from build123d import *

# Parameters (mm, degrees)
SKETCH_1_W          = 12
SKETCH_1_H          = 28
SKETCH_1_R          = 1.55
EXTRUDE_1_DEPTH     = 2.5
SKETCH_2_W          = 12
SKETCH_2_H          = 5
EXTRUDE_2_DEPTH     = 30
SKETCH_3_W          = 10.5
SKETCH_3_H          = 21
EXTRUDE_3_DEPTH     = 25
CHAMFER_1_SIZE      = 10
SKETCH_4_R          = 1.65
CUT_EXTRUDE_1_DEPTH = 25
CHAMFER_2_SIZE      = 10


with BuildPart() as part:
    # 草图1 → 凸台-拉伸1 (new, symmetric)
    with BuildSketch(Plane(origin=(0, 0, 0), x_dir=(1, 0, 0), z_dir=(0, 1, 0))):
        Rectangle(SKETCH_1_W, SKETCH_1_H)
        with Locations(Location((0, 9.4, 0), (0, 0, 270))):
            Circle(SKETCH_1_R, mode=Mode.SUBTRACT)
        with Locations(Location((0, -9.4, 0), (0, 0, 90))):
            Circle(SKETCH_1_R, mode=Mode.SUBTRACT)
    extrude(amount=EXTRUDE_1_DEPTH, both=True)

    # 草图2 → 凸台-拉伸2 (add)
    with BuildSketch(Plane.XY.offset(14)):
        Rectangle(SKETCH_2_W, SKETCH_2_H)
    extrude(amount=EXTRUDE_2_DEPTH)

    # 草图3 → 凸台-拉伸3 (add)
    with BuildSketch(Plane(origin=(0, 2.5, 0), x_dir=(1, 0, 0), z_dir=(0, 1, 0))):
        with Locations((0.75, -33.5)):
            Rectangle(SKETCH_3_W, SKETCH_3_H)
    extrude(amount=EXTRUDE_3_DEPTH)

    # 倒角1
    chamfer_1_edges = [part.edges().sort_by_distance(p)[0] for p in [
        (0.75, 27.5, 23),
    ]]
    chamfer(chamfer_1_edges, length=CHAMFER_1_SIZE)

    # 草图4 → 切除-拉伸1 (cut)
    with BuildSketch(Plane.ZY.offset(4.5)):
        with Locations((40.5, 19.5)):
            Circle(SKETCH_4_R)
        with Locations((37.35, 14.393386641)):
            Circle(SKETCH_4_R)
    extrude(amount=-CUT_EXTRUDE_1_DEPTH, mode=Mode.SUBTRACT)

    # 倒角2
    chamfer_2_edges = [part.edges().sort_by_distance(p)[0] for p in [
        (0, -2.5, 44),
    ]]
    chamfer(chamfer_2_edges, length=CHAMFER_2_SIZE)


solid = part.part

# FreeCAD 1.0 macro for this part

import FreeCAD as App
import Part
import Sketcher
from FreeCAD import Vector
Q = App.Units.Quantity


def edges_at(feature, points):
    """Names of the edges that pass closest to the given points."""
    edges = feature.Shape.Edges
    near = lambda p: min(range(len(edges)), key=lambda i: edges[i].distToShape(Part.Vertex(*p))[0])
    return sorted({f"Edge{near(p) + 1}" for p in points})

doc = App.newDocument("Part")
body = doc.addObject("PartDesign::Body", "Body")

# Sketch on XZ plane
sketch1 = doc.addObject("Sketcher::SketchObject", "Sketch")
body.addObject(sketch1)
sketch1.AttachmentSupport = (doc.XZ_Plane, [""])
sketch1.MapMode = "FlatFace"
sketch1.addGeometry(Part.LineSegment(Vector(-6, -14, 0), Vector(-6, 14, 0)), False)
sketch1.addGeometry(Part.LineSegment(Vector(-6, 14, 0), Vector(6, 14, 0)), False)
sketch1.addGeometry(Part.LineSegment(Vector(6, 14, 0), Vector(6, -14, 0)), False)
sketch1.addGeometry(Part.LineSegment(Vector(6, -14, 0), Vector(-6, -14, 0)), False)
sketch1.addGeometry(Part.Circle(Vector(0, 9.4, 0), Vector(0, 0, 1), 1.6), False)
sketch1.addGeometry(Part.Circle(Vector(0, -9.4, 0), Vector(0, 0, 1), 1.6), False)
sketch1.addConstraint(Sketcher.Constraint("Coincident", 0, 2, 1, 1))
sketch1.addConstraint(Sketcher.Constraint("Coincident", 1, 2, 2, 1))
sketch1.addConstraint(Sketcher.Constraint("Coincident", 2, 2, 3, 1))
sketch1.addConstraint(Sketcher.Constraint("Coincident", 3, 2, 0, 1))
sketch1.addConstraint(Sketcher.Constraint("Vertical", 0))
sketch1.addConstraint(Sketcher.Constraint("Horizontal", 1))
sketch1.addConstraint(Sketcher.Constraint("Vertical", 2))
sketch1.addConstraint(Sketcher.Constraint("Horizontal", 3))
sketch1.addConstraint(Sketcher.Constraint("Equal", 4, 5))
sketch1.addConstraint(Sketcher.Constraint("Symmetric", 4, 3, 5, 3, -1, 1))
sketch1.addConstraint(Sketcher.Constraint("Symmetric", 0, 2, 2, 2, -1, 1))
sketch1.addConstraint(Sketcher.Constraint("PointOnObject", 4, 3, -2))
sketch1.addConstraint(Sketcher.Constraint("Diameter", 4, Q("3.1 mm")))
sketch1.addConstraint(Sketcher.Constraint("DistanceX", 1, 1, 1, 2, Q("12 mm")))
sketch1.addConstraint(Sketcher.Constraint("DistanceY", 0, 1, 0, 2, Q("28 mm")))
sketch1.addConstraint(Sketcher.Constraint("DistanceY", -1, 1, 4, 3, Q("9.4 mm")))
pad1 = doc.addObject("PartDesign::Pad", "Pad")
body.addObject(pad1)
pad1.Profile = sketch1
pad1.Length = 5
pad1.Midplane = True

# Sketch on XY plane
sketch2 = doc.addObject("Sketcher::SketchObject", "Sketch001")
body.addObject(sketch2)
sketch2.AttachmentSupport = (doc.XY_Plane, [""])
sketch2.MapMode = "FlatFace"
sketch2.AttachmentOffset = App.Placement(Vector(0, 0, 14), App.Rotation())
sketch2.addGeometry(Part.LineSegment(Vector(-6, 2, 0), Vector(-6, -2, 0)), False)
sketch2.addGeometry(Part.LineSegment(Vector(-6, -2, 0), Vector(6, -2, 0)), False)
sketch2.addGeometry(Part.LineSegment(Vector(6, -2, 0), Vector(6, 2, 0)), False)
sketch2.addGeometry(Part.LineSegment(Vector(6, 2, 0), Vector(-6, 2, 0)), False)
sketch2.addConstraint(Sketcher.Constraint("Coincident", 0, 2, 1, 1))
sketch2.addConstraint(Sketcher.Constraint("Coincident", 1, 2, 2, 1))
sketch2.addConstraint(Sketcher.Constraint("Coincident", 2, 2, 3, 1))
sketch2.addConstraint(Sketcher.Constraint("Coincident", 3, 2, 0, 1))
sketch2.addConstraint(Sketcher.Constraint("Vertical", 0))
sketch2.addConstraint(Sketcher.Constraint("Horizontal", 1))
sketch2.addConstraint(Sketcher.Constraint("Vertical", 2))
sketch2.addConstraint(Sketcher.Constraint("Horizontal", 3))
sketch2.addConstraint(Sketcher.Constraint("Symmetric", 0, 2, 2, 2, -1, 1))
sketch2.addConstraint(Sketcher.Constraint("DistanceX", 1, 1, 1, 2, Q("12 mm")))
sketch2.addConstraint(Sketcher.Constraint("DistanceY", 0, 2, 0, 1, Q("5 mm")))
pad2 = doc.addObject("PartDesign::Pad", "Pad001")
body.addObject(pad2)
pad2.Profile = sketch2
pad2.Length = 30

# Sketch on XZ plane
sketch3 = doc.addObject("Sketcher::SketchObject", "Sketch002")
body.addObject(sketch3)
sketch3.AttachmentSupport = (doc.XZ_Plane, [""])
sketch3.MapMode = "FlatFace"
sketch3.AttachmentOffset = App.Placement(Vector(0, 0, -2.5), App.Rotation())
sketch3.addGeometry(Part.LineSegment(Vector(-4, 23, 0), Vector(-4, 44, 0)), False)
sketch3.addGeometry(Part.LineSegment(Vector(-4, 44, 0), Vector(6, 44, 0)), False)
sketch3.addGeometry(Part.LineSegment(Vector(6, 44, 0), Vector(6, 23, 0)), False)
sketch3.addGeometry(Part.LineSegment(Vector(6, 23, 0), Vector(-4, 23, 0)), False)
sketch3.addConstraint(Sketcher.Constraint("Coincident", 0, 2, 1, 1))
sketch3.addConstraint(Sketcher.Constraint("Coincident", 1, 2, 2, 1))
sketch3.addConstraint(Sketcher.Constraint("Coincident", 2, 2, 3, 1))
sketch3.addConstraint(Sketcher.Constraint("Coincident", 3, 2, 0, 1))
sketch3.addConstraint(Sketcher.Constraint("Vertical", 0))
sketch3.addConstraint(Sketcher.Constraint("Horizontal", 1))
sketch3.addConstraint(Sketcher.Constraint("Vertical", 2))
sketch3.addConstraint(Sketcher.Constraint("Horizontal", 3))
sketch3.addConstraint(Sketcher.Constraint("DistanceY", 0, 1, 0, 2, Q("21 mm")))
sketch3.addConstraint(Sketcher.Constraint("DistanceX", 1, 1, 1, 2, Q("10.5 mm")))
sketch3.addConstraint(Sketcher.Constraint("DistanceY", -1, 1, 0, 2, Q("44 mm")))
sketch3.addConstraint(Sketcher.Constraint("DistanceX", -1, 1, 1, 2, Q("6 mm")))
pad3 = doc.addObject("PartDesign::Pad", "Pad002")
body.addObject(pad3)
pad3.Profile = sketch3
pad3.Length = 25
pad3.Reversed = True
doc.recompute()

chamfer = doc.addObject("PartDesign::Chamfer", "Chamfer")
body.addObject(chamfer)
chamfer.Base = (pad3, edges_at(pad3, [(0.75, 27.5, 23)]))
chamfer.Size = 10

# Sketch on YZ plane
sketch4 = doc.addObject("Sketcher::SketchObject", "Sketch003")
body.addObject(sketch4)
sketch4.AttachmentSupport = (doc.YZ_Plane, [""])
sketch4.MapMode = "FlatFace"
sketch4.AttachmentOffset = App.Placement(Vector(0, 0, -4.5), App.Rotation())
sketch4.addGeometry(Part.Circle(Vector(19.5, 40.5, 0), Vector(0, 0, 1), 1.6), False)
sketch4.addGeometry(Part.Circle(Vector(14.4, 37.4, 0), Vector(0, 0, 1), 1.6), False)
sketch4.addConstraint(Sketcher.Constraint("Equal", 0, 1))
sketch4.addConstraint(Sketcher.Constraint("Diameter", 0, Q("3.3 mm")))
sketch4.addConstraint(Sketcher.Constraint("DistanceX", -1, 1, 0, 3, Q("19.5 mm")))
sketch4.addConstraint(Sketcher.Constraint("DistanceY", -1, 1, 0, 3, Q("40.5 mm")))
sketch4.addConstraint(Sketcher.Constraint("DistanceY", -1, 1, 1, 3, Q("37.35 mm")))
sketch4.addConstraint(Sketcher.Constraint("DistanceX", -1, 1, 1, 3, Q("14.393387 mm")))
pocket1 = doc.addObject("PartDesign::Pocket", "Pocket")
body.addObject(pocket1)
pocket1.Profile = sketch4
pocket1.Length = 25
pocket1.Reversed = True
doc.recompute()

chamfer2 = doc.addObject("PartDesign::Chamfer", "Chamfer001")
body.addObject(chamfer2)
chamfer2.Base = (pocket1, edges_at(pocket1, [(0, -2.5, 44)]))
chamfer2.Size = 10

doc.recompute()
